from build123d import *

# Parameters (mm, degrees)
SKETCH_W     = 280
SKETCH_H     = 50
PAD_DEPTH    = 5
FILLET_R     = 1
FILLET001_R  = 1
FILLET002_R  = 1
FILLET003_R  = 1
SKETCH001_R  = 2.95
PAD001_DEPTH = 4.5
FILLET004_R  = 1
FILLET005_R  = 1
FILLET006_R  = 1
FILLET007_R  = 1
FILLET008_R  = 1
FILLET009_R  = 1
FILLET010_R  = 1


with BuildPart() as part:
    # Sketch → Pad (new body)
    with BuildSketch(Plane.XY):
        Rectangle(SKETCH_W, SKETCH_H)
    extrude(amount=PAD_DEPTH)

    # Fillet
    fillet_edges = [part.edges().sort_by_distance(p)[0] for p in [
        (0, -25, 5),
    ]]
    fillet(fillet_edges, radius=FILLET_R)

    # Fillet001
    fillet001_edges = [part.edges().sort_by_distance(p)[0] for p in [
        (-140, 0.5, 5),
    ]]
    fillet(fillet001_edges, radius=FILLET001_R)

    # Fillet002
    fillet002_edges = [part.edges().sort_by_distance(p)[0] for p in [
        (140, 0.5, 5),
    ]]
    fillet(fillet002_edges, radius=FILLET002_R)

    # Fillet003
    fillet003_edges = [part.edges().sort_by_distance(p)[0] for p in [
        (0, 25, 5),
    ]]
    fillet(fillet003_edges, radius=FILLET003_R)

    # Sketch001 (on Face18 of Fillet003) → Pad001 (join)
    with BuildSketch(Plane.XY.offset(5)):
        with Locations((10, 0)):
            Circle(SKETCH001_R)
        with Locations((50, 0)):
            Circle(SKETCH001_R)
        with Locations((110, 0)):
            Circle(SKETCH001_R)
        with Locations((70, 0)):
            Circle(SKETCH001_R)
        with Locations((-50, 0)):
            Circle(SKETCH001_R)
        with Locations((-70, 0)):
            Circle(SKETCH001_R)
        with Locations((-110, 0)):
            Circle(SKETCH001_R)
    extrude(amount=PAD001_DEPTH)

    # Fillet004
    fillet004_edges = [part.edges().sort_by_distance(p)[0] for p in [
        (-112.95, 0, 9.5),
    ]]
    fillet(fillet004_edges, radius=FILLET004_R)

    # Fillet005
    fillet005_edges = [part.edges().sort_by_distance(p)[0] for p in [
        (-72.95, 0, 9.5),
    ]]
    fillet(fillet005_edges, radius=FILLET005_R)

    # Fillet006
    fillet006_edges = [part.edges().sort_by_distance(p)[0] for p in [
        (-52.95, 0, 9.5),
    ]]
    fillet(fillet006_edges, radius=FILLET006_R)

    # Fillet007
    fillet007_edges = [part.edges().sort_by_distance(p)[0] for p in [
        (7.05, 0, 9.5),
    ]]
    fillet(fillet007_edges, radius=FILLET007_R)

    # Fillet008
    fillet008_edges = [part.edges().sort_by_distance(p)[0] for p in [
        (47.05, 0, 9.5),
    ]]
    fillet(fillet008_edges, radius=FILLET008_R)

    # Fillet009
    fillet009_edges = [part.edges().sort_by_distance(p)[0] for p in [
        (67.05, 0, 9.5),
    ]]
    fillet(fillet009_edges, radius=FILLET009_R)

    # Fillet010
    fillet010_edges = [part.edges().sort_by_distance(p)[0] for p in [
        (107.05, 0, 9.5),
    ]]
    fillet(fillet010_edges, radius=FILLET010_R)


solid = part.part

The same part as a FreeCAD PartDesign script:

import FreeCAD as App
import Part
import Sketcher

V = App.Vector


def edges_at(feature, points):
    """Names of the edges that pass closest to the given points."""
    edges = feature.Shape.Edges
    near = lambda p: min(range(len(edges)), key=lambda i: edges[i].distToShape(Part.Vertex(*p))[0])
    return sorted({f"Edge{near(p) + 1}" for p in points})


def add_polygon(sketch, points):
    """Adds a closed chain of lines whose ends are joined by coincident constraints."""
    first, n = sketch.GeometryCount, len(points)
    for a, b in zip(points, points[1:] + points[:1]):
        sketch.addGeometry(Part.LineSegment(App.Vector(*a, 0), App.Vector(*b, 0)), False)
    for i in range(n):
        sketch.addConstraint(Sketcher.Constraint("Coincident", first + i, 2, first + (i + 1) % n, 1))

doc = App.newDocument("Part")
body = doc.addObject("PartDesign::Body", "Body")

# Sketch on XY plane
sketch1 = doc.addObject("Sketcher::SketchObject", "Sketch")
body.addObject(sketch1)
sketch1.AttachmentSupport = (doc.XY_Plane, [""])
sketch1.MapMode = "FlatFace"
add_polygon(sketch1, [(-140, 25), (-140, -25), (140, -25), (140, 25)])  # lines 0-3
sketch1.addConstraint([
    Sketcher.Constraint("Vertical", 0),
    Sketcher.Constraint("Horizontal", 1),
    Sketcher.Constraint("Vertical", 2),
    Sketcher.Constraint("Horizontal", 3),
    Sketcher.Constraint("Symmetric", 0, 2, 2, 2, -1, 1),
    Sketcher.Constraint("DistanceX", 1, 1, 1, 2, 280.0),
    Sketcher.Constraint("DistanceY", 0, 2, 0, 1, 50.0),
])
pad1 = doc.addObject("PartDesign::Pad", "Pad")
body.addObject(pad1)
pad1.Profile = sketch1
pad1.Length = 5
doc.recompute()

fillet = doc.addObject("PartDesign::Fillet", "Fillet")
body.addObject(fillet)
fillet.Base = (pad1, edges_at(pad1, [(0, -25, 5)]))
fillet.Radius = 1
doc.recompute()

fillet2 = doc.addObject("PartDesign::Fillet", "Fillet001")
body.addObject(fillet2)
fillet2.Base = (fillet, edges_at(fillet, [(-140, 0.5, 5)]))
fillet2.Radius = 1
doc.recompute()

fillet3 = doc.addObject("PartDesign::Fillet", "Fillet002")
body.addObject(fillet3)
fillet3.Base = (fillet2, edges_at(fillet2, [(140, 0.5, 5)]))
fillet3.Radius = 1
doc.recompute()

fillet4 = doc.addObject("PartDesign::Fillet", "Fillet003")
body.addObject(fillet4)
fillet4.Base = (fillet3, edges_at(fillet3, [(0, 25, 5)]))
fillet4.Radius = 1

# Sketch on XY plane
sketch2 = doc.addObject("Sketcher::SketchObject", "Sketch001")
body.addObject(sketch2)
sketch2.AttachmentSupport = (doc.XY_Plane, [""])
sketch2.MapMode = "FlatFace"
sketch2.AttachmentOffset = App.Placement(V(0, 0, 5), App.Rotation())
sketch2.addGeometry([
    Part.Circle(V(10, 0, 0), V(0, 0, 1), 2.95),  # 0
    Part.Circle(V(50, 0, 0), V(0, 0, 1), 2.95),  # 1
    Part.Circle(V(110, 0, 0), V(0, 0, 1), 2.95),  # 2
    Part.Circle(V(70, 0, 0), V(0, 0, 1), 2.95),  # 3
    Part.Circle(V(-50, 0, 0), V(0, 0, 1), 2.95),  # 4
    Part.Circle(V(-70, 0, 0), V(0, 0, 1), 2.95),  # 5
    Part.Circle(V(-110, 0, 0), V(0, 0, 1), 2.95),  # 6
], False)
sketch2.addConstraint([
    Sketcher.Constraint("Equal", 0, 1),
    Sketcher.Constraint("Equal", 1, 2),
    Sketcher.Constraint("Equal", 2, 3),
    Sketcher.Constraint("Equal", 3, 4),
    Sketcher.Constraint("Equal", 4, 5),
    Sketcher.Constraint("Equal", 5, 6),
    Sketcher.Constraint("Symmetric", 1, 3, 4, 3, -1, 1),
    Sketcher.Constraint("Symmetric", 3, 3, 5, 3, -1, 1),
    Sketcher.Constraint("Symmetric", 2, 3, 6, 3, -1, 1),
    Sketcher.Constraint("PointOnObject", 0, 3, -1),
    Sketcher.Constraint("PointOnObject", 1, 3, -1),
    Sketcher.Constraint("PointOnObject", 2, 3, -1),
    Sketcher.Constraint("PointOnObject", 3, 3, -1),
    Sketcher.Constraint("Diameter", 0, 5.9),
    Sketcher.Constraint("DistanceX", -1, 1, 0, 3, 10.0),
    Sketcher.Constraint("DistanceX", -1, 1, 1, 3, 50.0),
    Sketcher.Constraint("DistanceX", -1, 1, 2, 3, 110.0),
    Sketcher.Constraint("DistanceX", -1, 1, 3, 3, 70.0),
])
pad2 = doc.addObject("PartDesign::Pad", "Pad001")
body.addObject(pad2)
pad2.Profile = sketch2
pad2.Length = 4.5
doc.recompute()

fillet5 = doc.addObject("PartDesign::Fillet", "Fillet004")
body.addObject(fillet5)
fillet5.Base = (pad2, edges_at(pad2, [(-112.95, 0, 9.5)]))
fillet5.Radius = 1
doc.recompute()

fillet6 = doc.addObject("PartDesign::Fillet", "Fillet005")
body.addObject(fillet6)
fillet6.Base = (fillet5, edges_at(fillet5, [(-72.95, 0, 9.5)]))
fillet6.Radius = 1
doc.recompute()

fillet7 = doc.addObject("PartDesign::Fillet", "Fillet006")
body.addObject(fillet7)
fillet7.Base = (fillet6, edges_at(fillet6, [(-52.95, 0, 9.5)]))
fillet7.Radius = 1
doc.recompute()

fillet8 = doc.addObject("PartDesign::Fillet", "Fillet007")
body.addObject(fillet8)
fillet8.Base = (fillet7, edges_at(fillet7, [(7.05, 0, 9.5)]))
fillet8.Radius = 1
doc.recompute()

fillet9 = doc.addObject("PartDesign::Fillet", "Fillet008")
body.addObject(fillet9)
fillet9.Base = (fillet8, edges_at(fillet8, [(47.05, 0, 9.5)]))
fillet9.Radius = 1
doc.recompute()

fillet10 = doc.addObject("PartDesign::Fillet", "Fillet009")
body.addObject(fillet10)
fillet10.Base = (fillet9, edges_at(fillet9, [(67.05, 0, 9.5)]))
fillet10.Radius = 1
doc.recompute()

fillet11 = doc.addObject("PartDesign::Fillet", "Fillet010")
body.addObject(fillet11)
fillet11.Base = (fillet10, edges_at(fillet10, [(107.05, 0, 9.5)]))
fillet11.Radius = 1

doc.recompute()
